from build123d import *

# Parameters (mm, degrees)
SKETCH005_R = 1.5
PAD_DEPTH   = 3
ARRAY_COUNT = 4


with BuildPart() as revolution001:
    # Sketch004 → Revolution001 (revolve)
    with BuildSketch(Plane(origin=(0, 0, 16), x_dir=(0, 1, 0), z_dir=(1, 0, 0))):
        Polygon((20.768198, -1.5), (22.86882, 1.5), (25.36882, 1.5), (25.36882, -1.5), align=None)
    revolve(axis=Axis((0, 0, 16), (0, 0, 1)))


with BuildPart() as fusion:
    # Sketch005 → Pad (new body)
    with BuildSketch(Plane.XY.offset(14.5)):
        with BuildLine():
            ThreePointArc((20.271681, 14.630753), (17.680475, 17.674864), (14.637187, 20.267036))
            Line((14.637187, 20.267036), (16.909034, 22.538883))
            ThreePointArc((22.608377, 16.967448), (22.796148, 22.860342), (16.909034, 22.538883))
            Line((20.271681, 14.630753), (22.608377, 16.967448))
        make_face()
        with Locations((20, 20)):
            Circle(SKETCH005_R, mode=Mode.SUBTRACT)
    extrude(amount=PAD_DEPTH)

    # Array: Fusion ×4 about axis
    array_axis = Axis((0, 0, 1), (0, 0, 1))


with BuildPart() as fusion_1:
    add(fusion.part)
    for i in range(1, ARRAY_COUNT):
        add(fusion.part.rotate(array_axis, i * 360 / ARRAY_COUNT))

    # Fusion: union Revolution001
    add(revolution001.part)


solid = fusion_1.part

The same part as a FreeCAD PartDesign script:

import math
import FreeCAD as App
import Part
import Sketcher

V = App.Vector
Q = App.Units.Quantity

doc = App.newDocument("Part")
body = doc.addObject("PartDesign::Body", "Body")

sketch1 = body.newObject("Sketcher::SketchObject", "Sketch")
sketch1.AttachmentSupport = (doc.getObject("YZ_Plane"), [""])
sketch1.MapMode = "FlatFace"
sketch1.addGeometry([
    Part.LineSegment(V(22.9, 17.5, 0), V(20.8, 14.5, 0)),
    Part.LineSegment(V(20.8, 14.5, 0), V(25.4, 14.5, 0)),
    Part.LineSegment(V(25.4, 14.5, 0), V(25.4, 17.5, 0)),
    Part.LineSegment(V(25.4, 17.5, 0), V(22.9, 17.5, 0)),
], False)
sketch1.addConstraint([
    Sketcher.Constraint("Coincident", 0, 2, 1, 1),
    Sketcher.Constraint("Coincident", 1, 2, 2, 1),
    Sketcher.Constraint("Coincident", 2, 2, 3, 1),
    Sketcher.Constraint("Coincident", 3, 2, 0, 1),
    Sketcher.Constraint("Horizontal", 1),
    Sketcher.Constraint("Vertical", 2),
    Sketcher.Constraint("Horizontal", 3),
    Sketcher.Constraint("DistanceY", 2, 1, 2, 2, Q("3 mm")),
    Sketcher.Constraint("Angle", 0, Q("-124.999992 deg")),
    Sketcher.Constraint("DistanceX", 3, 2, 3, 1, Q("2.5 mm")),
    Sketcher.Constraint("DistanceY", -1, 1, 0, 2, Q("14.5 mm")),
    Sketcher.Constraint("DistanceX", -1, 1, 0, 2, Q("20.768198 mm")),
])
revolution = body.newObject("PartDesign::Revolution", "Revolution")
revolution.Profile = sketch1
revolution.ReferenceAxis = (sketch1, ["V_Axis"])
revolution.Angle = 360
body2 = doc.addObject("PartDesign::Body", "Body001")

sketch2 = body2.newObject("Sketcher::SketchObject", "Sketch001")
sketch2.AttachmentSupport = (doc.getObject("XY_Plane001"), [""])
sketch2.MapMode = "FlatFace"
sketch2.AttachmentOffset = App.Placement(V(0, 0, 14.5), App.Rotation())
sketch2.addGeometry([
    Part.ArcOfCircle(Part.Circle(V(0, 0, 0), V(0, 0, 1), 25), math.radians(35.82), math.radians(54.16)),
    Part.LineSegment(V(20.3, 14.6, 0), V(22.6, 17, 0)),
    Part.ArcOfCircle(Part.Circle(V(20, 20, 0), V(0, 0, 1), 4), math.radians(-49), math.radians(141)),
    Part.LineSegment(V(16.9, 22.5, 0), V(14.6, 20.3, 0)),
    Part.Circle(V(20, 20, 0), V(0, 0, 1), 1.5),
], False)
sketch2.addConstraint([
    Sketcher.Constraint("Coincident", 0, 1, 1, 1),
    Sketcher.Constraint("Coincident", 1, 2, 2, 1),
    Sketcher.Constraint("Coincident", 2, 2, 3, 1),
    Sketcher.Constraint("Coincident", 3, 2, 0, 2),
    Sketcher.Constraint("Coincident", 4, 3, 2, 3),
    Sketcher.Constraint("Parallel", 1, 3),
    Sketcher.Constraint("Diameter", 4, Q("3 mm")),
    Sketcher.Constraint("Radius", 2, Q("4 mm")),
    Sketcher.Constraint("Angle", 1, Q("44.999988 deg")),
    Sketcher.Constraint("DistanceX", -1, 1, 2, 3, Q("20 mm")),
    Sketcher.Constraint("DistanceY", -1, 1, 2, 3, Q("20 mm")),
    Sketcher.Constraint("Radius", 0, Q("24.99996 mm")),
    Sketcher.Constraint("DistanceX", -1, 1, 0, 1, Q("20.271681 mm")),
    Sketcher.Constraint("DistanceY", -1, 1, 1, 2, Q("16.967448 mm")),
    Sketcher.Constraint("DistanceX", 0, 3, 2, 3, Q("19.999972 mm")),
    Sketcher.Constraint("DistanceY", 0, 1, 2, 2, Q("7.90813 mm")),
])
pad1 = body2.newObject("PartDesign::Pad", "Pad")
pad1.Profile = sketch2
pad1.Length = 3
body3 = doc.addObject("PartDesign::Body", "Body002")
body3.AllowCompound = True
doc.recompute()

body3.BaseFeature = body2
doc.recompute()

body4 = doc.addObject("PartDesign::Body", "Body003")
body4.BaseFeature = body2
body4.Placement = App.Placement(V(0, 0, 0), App.Rotation(V(0, 0, 1), 90))
boolean = body3.newObject("PartDesign::Boolean", "Boolean")
boolean.Type = "Fuse"
boolean.addObjects([body4])
doc.recompute()

body5 = doc.addObject("PartDesign::Body", "Body004")
body5.BaseFeature = body2
body5.Placement = App.Placement(V(0, 0, 0), App.Rotation(V(0, 0, 1), 180))
boolean2 = body3.newObject("PartDesign::Boolean", "Boolean001")
boolean2.Type = "Fuse"
boolean2.addObjects([body5])
doc.recompute()

body2.Placement = App.Placement(V(0, 0, 0), App.Rotation(V(0, 0, 1), 270))
boolean3 = body3.newObject("PartDesign::Boolean", "Boolean002")
boolean3.Type = "Fuse"
boolean3.addObjects([body2])
doc.recompute()

boolean4 = body3.newObject("PartDesign::Boolean", "Boolean003")
boolean4.Type = "Fuse"
boolean4.addObjects([body])

doc.recompute()
